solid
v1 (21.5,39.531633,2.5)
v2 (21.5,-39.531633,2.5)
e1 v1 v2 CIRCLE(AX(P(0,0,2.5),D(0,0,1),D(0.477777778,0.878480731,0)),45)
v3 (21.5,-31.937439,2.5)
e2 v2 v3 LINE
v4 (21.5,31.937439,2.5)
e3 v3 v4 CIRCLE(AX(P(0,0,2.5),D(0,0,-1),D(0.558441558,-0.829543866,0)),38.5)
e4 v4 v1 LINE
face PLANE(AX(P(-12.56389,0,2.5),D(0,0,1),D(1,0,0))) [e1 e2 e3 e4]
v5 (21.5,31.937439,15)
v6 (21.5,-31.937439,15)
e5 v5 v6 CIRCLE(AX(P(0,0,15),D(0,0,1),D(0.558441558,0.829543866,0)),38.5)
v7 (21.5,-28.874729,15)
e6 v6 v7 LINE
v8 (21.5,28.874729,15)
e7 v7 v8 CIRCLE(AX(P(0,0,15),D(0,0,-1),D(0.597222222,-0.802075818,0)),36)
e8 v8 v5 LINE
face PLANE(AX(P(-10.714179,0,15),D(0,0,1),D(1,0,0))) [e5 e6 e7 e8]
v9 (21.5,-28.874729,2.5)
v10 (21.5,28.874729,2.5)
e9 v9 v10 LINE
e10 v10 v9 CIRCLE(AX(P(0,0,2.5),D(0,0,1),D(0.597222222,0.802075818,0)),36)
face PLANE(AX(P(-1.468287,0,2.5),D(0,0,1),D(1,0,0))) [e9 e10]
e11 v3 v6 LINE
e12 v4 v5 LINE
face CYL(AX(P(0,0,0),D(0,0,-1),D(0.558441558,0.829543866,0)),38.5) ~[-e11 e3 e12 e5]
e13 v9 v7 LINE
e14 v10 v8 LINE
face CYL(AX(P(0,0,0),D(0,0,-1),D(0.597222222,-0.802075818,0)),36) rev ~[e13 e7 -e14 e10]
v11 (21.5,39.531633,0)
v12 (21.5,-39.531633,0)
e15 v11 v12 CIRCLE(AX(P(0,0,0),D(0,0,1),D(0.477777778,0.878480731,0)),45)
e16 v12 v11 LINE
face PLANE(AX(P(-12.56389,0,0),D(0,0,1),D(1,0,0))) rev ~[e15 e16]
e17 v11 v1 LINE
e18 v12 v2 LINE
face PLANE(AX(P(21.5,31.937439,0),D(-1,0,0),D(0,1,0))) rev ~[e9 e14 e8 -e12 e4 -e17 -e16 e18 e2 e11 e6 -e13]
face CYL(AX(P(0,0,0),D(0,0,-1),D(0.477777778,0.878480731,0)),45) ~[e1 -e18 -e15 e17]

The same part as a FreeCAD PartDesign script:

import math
import FreeCAD as App
import Part
import Sketcher

doc = App.newDocument("Part")
body = doc.addObject("PartDesign::Body", "Body")

sketch1 = body.newObject("Sketcher::SketchObject", "Sketch")
sketch1.AttachmentSupport = (doc.getObject("XY_Plane"), [""])
sketch1.MapMode = "FlatFace"
sketch1.addGeometry([
    Part.LineSegment(App.Vector(21.5, 28.9, 0), App.Vector(21.5, 31.9, 0)),
    Part.ArcOfCircle(Part.Circle(App.Vector(0, 0, 0), App.Vector(0, 0, 1), 38.5), math.radians(56), math.radians(304)),
    Part.LineSegment(App.Vector(21.5, -31.9, 0), App.Vector(21.5, -28.9, 0)),
    Part.ArcOfCircle(Part.Circle(App.Vector(0, 0, 0), App.Vector(0, 0, 1), 36), math.radians(53), math.radians(307)),
], False)
sketch1.addConstraint([
    Sketcher.Constraint("Coincident", 0, 2, 1, 1),
    Sketcher.Constraint("Coincident", 1, 2, 2, 1),
    Sketcher.Constraint("Coincident", 2, 2, 3, 2),
    Sketcher.Constraint("Coincident", 3, 1, 0, 1),
    Sketcher.Constraint("Vertical", 0),
    Sketcher.Constraint("Vertical", 2),
    Sketcher.Constraint("Coincident", 1, 3, -1, 1),
    Sketcher.Constraint("Coincident", 3, 3, -1, 1),
    Sketcher.Constraint("Vertical", 0, 2, 1, 2),
    Sketcher.Constraint("Radius", 3, 36.0),
    Sketcher.Constraint("Radius", 1, 38.5),
    Sketcher.Constraint("DistanceX", -1, 1, 0, 2, 21.5),
])
pad1 = body.newObject("PartDesign::Pad", "Pad")
pad1.Profile = sketch1
pad1.Length = 15

sketch2 = body.newObject("Sketcher::SketchObject", "Sketch001")
sketch2.AttachmentSupport = (doc.getObject("XY_Plane"), [""])
sketch2.MapMode = "FlatFace"
sketch2.addGeometry([
    Part.ArcOfCircle(Part.Circle(App.Vector(0, 0, 0), App.Vector(0, 0, 1), 38), math.radians(56), math.radians(304)),
    Part.LineSegment(App.Vector(22, 32, 0), App.Vector(22, 40, 0)),
    Part.ArcOfCircle(Part.Circle(App.Vector(0, 0, 0), App.Vector(0, 0, 1), 45), math.radians(61), math.radians(299)),
    Part.LineSegment(App.Vector(22, -40, 0), App.Vector(22, -32, 0)),
    Part.LineSegment(App.Vector(22, -29, 0), App.Vector(22, 29, 0)),
    Part.ArcOfCircle(Part.Circle(App.Vector(0, 0, 0), App.Vector(0, 0, 1), 36), math.radians(53), math.radians(307)),
], False)
sketch2.addConstraint([
    Sketcher.Constraint("Coincident", 0, 1, 1, 1),
    Sketcher.Constraint("Coincident", 1, 2, 2, 1),
    Sketcher.Constraint("Coincident", 2, 2, 3, 1),
    Sketcher.Constraint("Coincident", 3, 2, 0, 2),
    Sketcher.Constraint("Coincident", 4, 1, 5, 2),
    Sketcher.Constraint("Coincident", 5, 1, 4, 2),
    Sketcher.Constraint("Vertical", 1),
    Sketcher.Constraint("Vertical", 3),
    Sketcher.Constraint("Vertical", 4),
    Sketcher.Constraint("Coincident", 0, 3, -1, 1),
    Sketcher.Constraint("Coincident", 2, 3, -1, 1),
    Sketcher.Constraint("Coincident", 5, 3, -1, 1),
    Sketcher.Constraint("Vertical", 1, 2, 2, 2),
    Sketcher.Constraint("Vertical", 3, 2, 4, 1),
    Sketcher.Constraint("Radius", 2, 45.0),
    Sketcher.Constraint("Radius", 5, 36.0),
    Sketcher.Constraint("Radius", 0, 38.5),
    Sketcher.Constraint("DistanceX", -1, 1, 0, 1, 21.5),
])
pad2 = body.newObject("PartDesign::Pad", "Pad001")
pad2.Profile = sketch2
pad2.Length = 2.5

doc.recompute()
